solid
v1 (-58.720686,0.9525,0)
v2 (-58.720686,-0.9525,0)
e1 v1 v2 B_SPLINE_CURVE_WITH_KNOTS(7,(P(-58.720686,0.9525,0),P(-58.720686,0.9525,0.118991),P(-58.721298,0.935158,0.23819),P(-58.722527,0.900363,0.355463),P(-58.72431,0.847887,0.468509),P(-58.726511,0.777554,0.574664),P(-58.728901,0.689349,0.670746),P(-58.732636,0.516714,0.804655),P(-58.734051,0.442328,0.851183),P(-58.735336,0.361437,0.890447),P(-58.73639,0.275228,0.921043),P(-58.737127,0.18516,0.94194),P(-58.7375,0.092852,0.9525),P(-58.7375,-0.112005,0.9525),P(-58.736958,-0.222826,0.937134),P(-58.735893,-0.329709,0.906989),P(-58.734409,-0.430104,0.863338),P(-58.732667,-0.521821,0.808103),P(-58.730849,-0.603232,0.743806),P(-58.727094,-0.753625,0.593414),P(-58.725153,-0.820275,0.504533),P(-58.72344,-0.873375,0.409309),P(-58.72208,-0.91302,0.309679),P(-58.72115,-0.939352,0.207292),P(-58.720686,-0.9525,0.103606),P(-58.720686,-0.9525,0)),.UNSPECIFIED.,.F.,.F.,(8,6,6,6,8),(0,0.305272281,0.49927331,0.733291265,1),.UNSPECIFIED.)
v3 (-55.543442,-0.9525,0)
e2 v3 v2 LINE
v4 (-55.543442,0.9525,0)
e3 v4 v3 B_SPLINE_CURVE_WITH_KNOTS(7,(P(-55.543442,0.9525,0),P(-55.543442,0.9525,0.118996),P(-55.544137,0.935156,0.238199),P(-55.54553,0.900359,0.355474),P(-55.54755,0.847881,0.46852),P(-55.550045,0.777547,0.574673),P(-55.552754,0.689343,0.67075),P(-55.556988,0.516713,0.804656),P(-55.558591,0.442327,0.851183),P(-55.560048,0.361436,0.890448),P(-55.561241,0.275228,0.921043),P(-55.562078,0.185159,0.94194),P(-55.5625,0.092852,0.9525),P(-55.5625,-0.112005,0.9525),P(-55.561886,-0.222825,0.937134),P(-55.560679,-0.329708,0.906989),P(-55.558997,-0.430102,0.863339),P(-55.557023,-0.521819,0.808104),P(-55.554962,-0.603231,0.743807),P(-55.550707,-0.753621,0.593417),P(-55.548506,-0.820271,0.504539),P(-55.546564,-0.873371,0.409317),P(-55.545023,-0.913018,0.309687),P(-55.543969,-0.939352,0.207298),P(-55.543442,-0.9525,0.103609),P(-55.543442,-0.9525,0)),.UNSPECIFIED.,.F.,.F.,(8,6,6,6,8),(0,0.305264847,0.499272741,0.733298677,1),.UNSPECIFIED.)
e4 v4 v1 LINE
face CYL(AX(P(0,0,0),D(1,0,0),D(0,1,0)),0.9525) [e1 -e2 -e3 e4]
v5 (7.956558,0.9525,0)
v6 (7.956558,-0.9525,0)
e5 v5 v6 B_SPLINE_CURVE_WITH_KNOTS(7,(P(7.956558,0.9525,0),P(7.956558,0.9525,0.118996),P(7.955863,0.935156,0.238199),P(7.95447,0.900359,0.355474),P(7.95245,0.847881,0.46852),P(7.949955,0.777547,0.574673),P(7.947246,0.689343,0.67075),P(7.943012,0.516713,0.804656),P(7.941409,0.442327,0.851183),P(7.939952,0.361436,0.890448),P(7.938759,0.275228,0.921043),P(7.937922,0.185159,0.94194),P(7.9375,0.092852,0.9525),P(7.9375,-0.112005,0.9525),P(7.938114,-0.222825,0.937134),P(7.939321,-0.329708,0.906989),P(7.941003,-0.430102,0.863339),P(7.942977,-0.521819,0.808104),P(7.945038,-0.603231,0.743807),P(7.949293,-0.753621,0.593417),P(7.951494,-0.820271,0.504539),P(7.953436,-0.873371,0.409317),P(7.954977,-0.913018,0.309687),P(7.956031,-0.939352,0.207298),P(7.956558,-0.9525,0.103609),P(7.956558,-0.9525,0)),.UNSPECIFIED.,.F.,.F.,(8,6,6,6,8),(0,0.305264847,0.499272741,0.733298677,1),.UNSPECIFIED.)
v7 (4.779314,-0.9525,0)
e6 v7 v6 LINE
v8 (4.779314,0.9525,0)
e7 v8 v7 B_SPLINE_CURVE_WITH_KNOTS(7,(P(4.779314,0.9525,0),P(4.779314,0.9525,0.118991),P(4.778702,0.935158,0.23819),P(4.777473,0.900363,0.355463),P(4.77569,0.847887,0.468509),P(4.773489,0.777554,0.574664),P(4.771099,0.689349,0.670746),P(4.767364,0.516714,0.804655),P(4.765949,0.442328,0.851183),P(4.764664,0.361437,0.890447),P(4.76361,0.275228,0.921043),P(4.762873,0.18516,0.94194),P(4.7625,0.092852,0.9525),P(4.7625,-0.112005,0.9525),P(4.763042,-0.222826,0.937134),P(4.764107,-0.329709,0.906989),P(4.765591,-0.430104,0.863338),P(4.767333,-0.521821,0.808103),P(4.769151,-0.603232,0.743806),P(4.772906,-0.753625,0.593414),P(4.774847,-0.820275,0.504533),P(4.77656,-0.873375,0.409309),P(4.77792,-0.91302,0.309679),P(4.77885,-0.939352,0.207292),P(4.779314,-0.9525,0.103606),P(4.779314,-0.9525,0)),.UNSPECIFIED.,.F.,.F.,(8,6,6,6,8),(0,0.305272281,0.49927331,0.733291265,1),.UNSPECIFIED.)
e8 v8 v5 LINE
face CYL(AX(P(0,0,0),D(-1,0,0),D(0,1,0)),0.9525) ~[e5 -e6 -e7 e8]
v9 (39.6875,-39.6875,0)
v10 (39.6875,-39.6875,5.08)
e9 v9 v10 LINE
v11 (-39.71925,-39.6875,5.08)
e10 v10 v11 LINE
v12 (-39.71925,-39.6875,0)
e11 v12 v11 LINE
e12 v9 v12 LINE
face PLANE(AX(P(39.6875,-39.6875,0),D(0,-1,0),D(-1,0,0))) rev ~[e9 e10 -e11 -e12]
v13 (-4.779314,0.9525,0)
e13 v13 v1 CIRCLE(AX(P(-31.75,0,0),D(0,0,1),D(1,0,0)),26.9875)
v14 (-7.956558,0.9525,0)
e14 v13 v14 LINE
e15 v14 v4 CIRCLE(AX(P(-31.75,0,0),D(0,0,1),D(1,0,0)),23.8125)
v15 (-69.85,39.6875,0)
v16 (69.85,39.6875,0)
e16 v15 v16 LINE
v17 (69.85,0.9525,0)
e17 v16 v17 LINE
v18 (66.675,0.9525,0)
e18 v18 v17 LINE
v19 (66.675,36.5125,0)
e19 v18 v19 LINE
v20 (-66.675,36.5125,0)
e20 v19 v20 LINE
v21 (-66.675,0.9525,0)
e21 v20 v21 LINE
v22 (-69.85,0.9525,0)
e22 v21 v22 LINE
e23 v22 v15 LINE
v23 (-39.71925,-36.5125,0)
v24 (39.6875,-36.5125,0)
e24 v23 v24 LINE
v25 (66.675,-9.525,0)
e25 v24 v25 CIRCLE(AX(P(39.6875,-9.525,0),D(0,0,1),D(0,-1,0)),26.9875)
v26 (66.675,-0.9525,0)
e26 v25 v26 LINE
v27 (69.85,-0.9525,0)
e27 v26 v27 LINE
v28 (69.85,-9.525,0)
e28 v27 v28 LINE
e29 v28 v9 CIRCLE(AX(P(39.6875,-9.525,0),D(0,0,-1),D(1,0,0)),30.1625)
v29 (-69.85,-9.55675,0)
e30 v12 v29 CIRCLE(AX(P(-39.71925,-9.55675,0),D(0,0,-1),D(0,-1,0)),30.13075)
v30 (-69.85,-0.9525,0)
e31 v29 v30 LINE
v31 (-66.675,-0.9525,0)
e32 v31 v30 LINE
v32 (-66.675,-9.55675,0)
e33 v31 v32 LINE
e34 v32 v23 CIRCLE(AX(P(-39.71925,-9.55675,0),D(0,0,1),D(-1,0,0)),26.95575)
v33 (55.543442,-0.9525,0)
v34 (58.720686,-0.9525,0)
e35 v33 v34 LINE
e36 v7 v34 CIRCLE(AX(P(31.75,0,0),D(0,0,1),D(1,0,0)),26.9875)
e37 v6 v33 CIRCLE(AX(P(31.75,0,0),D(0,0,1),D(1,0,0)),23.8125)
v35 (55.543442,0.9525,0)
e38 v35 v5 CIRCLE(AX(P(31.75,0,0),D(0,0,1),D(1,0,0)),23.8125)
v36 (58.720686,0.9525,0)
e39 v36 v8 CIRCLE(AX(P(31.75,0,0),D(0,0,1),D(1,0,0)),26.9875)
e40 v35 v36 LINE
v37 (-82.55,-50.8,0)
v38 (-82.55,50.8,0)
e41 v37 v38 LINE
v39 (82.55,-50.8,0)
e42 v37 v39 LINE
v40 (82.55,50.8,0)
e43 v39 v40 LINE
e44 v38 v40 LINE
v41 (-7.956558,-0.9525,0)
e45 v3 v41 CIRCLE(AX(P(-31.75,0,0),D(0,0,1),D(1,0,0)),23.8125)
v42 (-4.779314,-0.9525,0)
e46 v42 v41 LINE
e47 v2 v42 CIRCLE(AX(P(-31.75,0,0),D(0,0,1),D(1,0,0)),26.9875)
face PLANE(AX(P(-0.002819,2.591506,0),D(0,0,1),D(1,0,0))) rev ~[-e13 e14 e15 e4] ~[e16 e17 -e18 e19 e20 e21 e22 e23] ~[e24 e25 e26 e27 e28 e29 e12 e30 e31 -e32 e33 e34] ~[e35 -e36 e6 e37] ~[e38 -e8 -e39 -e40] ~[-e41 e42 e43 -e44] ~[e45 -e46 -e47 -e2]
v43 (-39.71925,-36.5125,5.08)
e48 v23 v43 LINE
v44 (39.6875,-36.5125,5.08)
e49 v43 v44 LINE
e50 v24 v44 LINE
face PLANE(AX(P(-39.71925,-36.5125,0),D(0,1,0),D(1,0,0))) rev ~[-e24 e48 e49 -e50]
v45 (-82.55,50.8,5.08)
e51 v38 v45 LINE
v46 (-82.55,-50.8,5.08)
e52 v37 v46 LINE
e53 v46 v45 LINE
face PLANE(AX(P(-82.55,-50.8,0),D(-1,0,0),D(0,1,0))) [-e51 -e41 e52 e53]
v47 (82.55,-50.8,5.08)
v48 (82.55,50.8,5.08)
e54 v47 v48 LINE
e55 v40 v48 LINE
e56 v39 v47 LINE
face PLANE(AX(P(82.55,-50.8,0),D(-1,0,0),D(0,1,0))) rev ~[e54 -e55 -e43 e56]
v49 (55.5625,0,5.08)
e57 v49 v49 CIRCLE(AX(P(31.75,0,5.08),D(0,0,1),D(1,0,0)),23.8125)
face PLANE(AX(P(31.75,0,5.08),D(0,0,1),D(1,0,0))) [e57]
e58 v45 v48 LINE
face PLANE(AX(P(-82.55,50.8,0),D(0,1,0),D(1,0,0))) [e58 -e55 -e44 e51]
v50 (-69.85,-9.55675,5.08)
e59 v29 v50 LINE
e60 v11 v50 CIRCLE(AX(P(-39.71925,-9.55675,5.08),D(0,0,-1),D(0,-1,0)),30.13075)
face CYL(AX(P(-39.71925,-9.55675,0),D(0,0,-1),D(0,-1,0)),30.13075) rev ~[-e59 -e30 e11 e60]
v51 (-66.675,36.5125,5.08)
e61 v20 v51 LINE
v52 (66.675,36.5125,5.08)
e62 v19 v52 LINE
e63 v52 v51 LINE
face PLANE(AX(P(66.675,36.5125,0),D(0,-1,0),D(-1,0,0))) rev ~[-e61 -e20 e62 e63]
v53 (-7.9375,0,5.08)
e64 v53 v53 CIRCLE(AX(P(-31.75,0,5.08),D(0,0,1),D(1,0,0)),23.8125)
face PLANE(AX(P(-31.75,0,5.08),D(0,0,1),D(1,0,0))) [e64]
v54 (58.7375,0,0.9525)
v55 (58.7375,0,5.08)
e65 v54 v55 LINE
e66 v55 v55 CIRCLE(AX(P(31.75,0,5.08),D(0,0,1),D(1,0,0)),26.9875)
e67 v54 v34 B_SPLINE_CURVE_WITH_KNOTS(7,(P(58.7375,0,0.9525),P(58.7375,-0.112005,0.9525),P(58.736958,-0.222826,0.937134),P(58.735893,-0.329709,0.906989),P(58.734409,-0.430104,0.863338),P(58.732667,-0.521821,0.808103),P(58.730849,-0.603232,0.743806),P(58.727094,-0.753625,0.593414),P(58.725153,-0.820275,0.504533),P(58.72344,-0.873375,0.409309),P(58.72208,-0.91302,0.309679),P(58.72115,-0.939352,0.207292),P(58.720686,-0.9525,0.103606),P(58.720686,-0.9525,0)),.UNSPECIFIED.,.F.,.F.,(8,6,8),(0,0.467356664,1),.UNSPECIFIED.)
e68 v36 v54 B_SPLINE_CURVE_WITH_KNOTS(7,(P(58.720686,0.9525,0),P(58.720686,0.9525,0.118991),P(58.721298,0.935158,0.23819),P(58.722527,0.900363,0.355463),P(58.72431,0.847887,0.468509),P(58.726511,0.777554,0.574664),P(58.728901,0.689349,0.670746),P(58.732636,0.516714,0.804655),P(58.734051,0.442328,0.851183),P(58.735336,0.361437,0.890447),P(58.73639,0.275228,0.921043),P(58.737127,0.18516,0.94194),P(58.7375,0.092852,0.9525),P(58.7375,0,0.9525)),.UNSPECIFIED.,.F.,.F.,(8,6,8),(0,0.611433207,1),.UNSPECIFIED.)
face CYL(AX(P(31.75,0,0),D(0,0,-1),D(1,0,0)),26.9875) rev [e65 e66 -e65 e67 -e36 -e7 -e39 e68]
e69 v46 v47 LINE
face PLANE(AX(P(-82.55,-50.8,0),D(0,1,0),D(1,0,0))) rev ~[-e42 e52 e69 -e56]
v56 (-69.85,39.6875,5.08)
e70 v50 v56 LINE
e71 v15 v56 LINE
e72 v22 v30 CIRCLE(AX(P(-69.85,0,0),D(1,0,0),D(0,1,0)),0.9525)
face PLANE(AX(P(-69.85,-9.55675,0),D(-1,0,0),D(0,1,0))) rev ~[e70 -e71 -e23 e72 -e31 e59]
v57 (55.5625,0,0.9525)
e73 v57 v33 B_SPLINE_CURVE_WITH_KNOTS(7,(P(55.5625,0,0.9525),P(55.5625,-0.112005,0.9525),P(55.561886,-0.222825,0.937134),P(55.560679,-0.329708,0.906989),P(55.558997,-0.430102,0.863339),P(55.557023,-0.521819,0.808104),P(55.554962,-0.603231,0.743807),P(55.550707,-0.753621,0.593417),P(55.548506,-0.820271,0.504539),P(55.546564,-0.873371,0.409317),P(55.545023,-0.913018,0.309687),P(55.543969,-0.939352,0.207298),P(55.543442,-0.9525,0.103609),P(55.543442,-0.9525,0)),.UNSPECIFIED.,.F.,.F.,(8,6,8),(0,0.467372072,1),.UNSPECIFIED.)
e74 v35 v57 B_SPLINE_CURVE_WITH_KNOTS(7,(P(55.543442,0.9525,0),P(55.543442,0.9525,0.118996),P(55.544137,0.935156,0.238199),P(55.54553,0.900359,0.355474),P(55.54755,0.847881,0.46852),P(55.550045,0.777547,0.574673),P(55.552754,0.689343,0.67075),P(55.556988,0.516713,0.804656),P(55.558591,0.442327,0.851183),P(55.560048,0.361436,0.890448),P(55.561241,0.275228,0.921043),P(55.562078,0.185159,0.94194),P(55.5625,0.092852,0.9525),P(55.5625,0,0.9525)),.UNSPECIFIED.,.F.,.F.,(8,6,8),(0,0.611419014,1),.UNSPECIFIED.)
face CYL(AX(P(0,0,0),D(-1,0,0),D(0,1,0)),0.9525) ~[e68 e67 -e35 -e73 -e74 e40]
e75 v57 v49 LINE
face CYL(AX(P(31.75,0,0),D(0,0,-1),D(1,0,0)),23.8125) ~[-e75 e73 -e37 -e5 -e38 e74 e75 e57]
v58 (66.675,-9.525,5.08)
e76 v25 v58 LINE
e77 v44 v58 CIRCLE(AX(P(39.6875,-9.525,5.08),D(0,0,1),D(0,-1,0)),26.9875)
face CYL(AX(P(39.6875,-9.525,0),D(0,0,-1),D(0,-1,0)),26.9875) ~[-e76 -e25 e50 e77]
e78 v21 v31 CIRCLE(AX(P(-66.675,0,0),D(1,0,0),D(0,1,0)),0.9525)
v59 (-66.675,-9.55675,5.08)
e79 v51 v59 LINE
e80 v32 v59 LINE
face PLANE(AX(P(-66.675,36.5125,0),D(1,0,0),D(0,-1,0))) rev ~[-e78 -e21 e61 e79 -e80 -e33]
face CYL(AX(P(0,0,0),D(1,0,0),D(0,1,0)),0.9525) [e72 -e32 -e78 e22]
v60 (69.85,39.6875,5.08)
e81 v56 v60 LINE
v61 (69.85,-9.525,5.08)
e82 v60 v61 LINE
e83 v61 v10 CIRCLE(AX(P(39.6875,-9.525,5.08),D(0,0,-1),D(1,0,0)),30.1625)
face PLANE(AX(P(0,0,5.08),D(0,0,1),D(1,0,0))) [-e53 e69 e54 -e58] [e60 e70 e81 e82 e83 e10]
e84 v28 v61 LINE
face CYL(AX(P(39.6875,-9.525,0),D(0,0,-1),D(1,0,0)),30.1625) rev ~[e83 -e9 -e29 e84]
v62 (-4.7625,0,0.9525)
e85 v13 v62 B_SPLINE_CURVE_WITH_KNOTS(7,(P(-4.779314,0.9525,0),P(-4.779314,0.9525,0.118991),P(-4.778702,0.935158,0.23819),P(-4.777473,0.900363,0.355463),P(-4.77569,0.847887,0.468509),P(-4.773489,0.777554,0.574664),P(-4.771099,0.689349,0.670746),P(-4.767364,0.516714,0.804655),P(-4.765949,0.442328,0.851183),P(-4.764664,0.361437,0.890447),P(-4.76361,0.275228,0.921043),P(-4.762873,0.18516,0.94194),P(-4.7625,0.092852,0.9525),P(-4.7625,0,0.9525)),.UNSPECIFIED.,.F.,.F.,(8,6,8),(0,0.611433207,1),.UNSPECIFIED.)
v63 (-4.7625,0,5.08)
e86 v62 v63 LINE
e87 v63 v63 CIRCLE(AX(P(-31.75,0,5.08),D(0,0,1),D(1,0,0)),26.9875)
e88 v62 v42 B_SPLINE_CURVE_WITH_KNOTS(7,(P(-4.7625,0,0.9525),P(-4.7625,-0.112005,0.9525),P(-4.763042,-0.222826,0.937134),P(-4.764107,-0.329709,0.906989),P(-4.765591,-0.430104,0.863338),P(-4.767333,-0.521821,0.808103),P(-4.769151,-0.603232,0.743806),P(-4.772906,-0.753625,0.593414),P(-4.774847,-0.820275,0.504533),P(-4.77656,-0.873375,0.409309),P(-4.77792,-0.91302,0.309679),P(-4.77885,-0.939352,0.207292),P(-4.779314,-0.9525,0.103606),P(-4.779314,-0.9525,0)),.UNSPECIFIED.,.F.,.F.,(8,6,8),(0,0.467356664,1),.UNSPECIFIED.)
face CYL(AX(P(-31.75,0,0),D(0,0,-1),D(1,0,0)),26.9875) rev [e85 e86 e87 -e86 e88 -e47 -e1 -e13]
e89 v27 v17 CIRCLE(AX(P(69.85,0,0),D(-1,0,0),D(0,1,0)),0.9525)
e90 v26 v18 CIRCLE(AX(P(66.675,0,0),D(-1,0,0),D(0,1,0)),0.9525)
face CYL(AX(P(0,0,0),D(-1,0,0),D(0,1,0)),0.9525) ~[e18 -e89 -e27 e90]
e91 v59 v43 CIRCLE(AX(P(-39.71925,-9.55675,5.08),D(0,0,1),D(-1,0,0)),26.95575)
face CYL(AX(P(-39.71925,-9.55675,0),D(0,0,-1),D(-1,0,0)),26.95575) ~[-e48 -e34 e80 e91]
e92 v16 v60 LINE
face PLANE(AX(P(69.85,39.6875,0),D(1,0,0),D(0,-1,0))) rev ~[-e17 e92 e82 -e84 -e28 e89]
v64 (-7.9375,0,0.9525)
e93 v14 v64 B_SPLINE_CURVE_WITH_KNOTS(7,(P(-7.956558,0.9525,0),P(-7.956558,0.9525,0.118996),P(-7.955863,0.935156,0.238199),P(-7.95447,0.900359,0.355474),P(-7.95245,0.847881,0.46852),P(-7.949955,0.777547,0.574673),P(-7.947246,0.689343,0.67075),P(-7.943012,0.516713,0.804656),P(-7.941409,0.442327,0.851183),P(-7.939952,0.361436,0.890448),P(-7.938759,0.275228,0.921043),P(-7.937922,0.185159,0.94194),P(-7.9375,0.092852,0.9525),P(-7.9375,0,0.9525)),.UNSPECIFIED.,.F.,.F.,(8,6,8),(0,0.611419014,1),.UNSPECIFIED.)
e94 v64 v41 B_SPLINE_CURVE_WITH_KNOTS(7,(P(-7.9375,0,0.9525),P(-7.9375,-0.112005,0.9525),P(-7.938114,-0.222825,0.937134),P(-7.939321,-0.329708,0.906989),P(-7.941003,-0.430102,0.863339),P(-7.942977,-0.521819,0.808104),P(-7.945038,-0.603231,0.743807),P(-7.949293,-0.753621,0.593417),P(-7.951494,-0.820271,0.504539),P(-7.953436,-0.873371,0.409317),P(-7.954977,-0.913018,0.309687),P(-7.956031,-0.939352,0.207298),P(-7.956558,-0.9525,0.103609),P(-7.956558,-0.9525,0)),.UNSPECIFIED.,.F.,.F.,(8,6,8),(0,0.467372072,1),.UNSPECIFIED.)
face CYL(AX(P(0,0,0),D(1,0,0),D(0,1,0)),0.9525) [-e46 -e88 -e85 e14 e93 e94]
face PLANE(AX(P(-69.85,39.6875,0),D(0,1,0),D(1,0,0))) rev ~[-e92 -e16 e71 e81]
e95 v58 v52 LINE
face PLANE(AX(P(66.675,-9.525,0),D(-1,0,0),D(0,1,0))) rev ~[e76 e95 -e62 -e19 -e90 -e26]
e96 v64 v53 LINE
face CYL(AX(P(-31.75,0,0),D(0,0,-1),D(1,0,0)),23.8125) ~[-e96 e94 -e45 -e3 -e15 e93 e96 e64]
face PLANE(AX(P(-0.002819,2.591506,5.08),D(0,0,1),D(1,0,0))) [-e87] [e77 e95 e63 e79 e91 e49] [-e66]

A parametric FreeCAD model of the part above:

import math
import FreeCAD as App
import Part
import Sketcher
Q = App.Units.Quantity


def add_polygon(sketch, points):
    """Adds a closed chain of lines whose ends are joined by coincident constraints."""
    first, n = sketch.GeometryCount, len(points)
    for a, b in zip(points, points[1:] + points[:1]):
        sketch.addGeometry(Part.LineSegment(App.Vector(*a, 0), App.Vector(*b, 0)), False)
    for i in range(n):
        sketch.addConstraint(Sketcher.Constraint("Coincident", first + i, 2, first + (i + 1) % n, 1))

doc = App.newDocument("Part")
body = doc.addObject("PartDesign::Body", "Body")

# Sketch on XY plane
sketch1 = body.newObject("Sketcher::SketchObject", "Sketch")
sketch1.AttachmentSupport = (doc.getObject("XY_Plane"), [""])
sketch1.MapMode = "FlatFace"
sketch1.addGeometry([
    Part.LineSegment(App.Vector(66.675, 36.5125, 0), App.Vector(-66.675, 36.5125, 0)),  # 0
    Part.LineSegment(App.Vector(-66.675, 36.5125, 0), App.Vector(-66.675, -9.55675, 0)),  # 1
    Part.ArcOfCircle(Part.Circle(App.Vector(-39.71925, -9.55675, 0), App.Vector(0, 0, 1), 26.95575), math.radians(180), math.radians(270)),  # 2
    Part.LineSegment(App.Vector(-39.71925, -36.5125, 0), App.Vector(39.6875, -36.5125, 0)),  # 3
    Part.ArcOfCircle(Part.Circle(App.Vector(39.6875, -9.525, 0), App.Vector(0, 0, 1), 26.9875), math.radians(-90), math.radians(0)),  # 4
    Part.LineSegment(App.Vector(66.675, -9.525, 0), App.Vector(66.675, 36.5125, 0)),  # 5
    Part.Circle(App.Vector(-31.75, 0, 0), App.Vector(0, 0, 1), 26.9875),  # 6
    Part.Circle(App.Vector(31.75, 0, 0), App.Vector(0, 0, 1), 26.9875),  # 7
], False)
sketch1.addConstraint([
    Sketcher.Constraint("Coincident", 0, 2, 1, 1),
    Sketcher.Constraint("Tangent", 1, 2, 2, 1),
    Sketcher.Constraint("Tangent", 2, 2, 3, 1),
    Sketcher.Constraint("Tangent", 3, 2, 4, 1),
    Sketcher.Constraint("Tangent", 4, 2, 5, 1),
    Sketcher.Constraint("Coincident", 5, 2, 0, 1),
    Sketcher.Constraint("Horizontal", 0),
    Sketcher.Constraint("Vertical", 1),
    Sketcher.Constraint("Horizontal", 3),
    Sketcher.Constraint("Vertical", 5),
    Sketcher.Constraint("Equal", 4, 6),
    Sketcher.Constraint("Equal", 6, 7),
    Sketcher.Constraint("Symmetric", 6, 3, 7, 3, -1, 1),
    Sketcher.Constraint("PointOnObject", 6, 3, -1),
    Sketcher.Constraint("Diameter", 6, Q("2.125 in")),
    Sketcher.Constraint("DistanceX", 0, 2, 0, 1, Q("5.25 in")),
    Sketcher.Constraint("DistanceX", 6, 3, 7, 3, Q("2.5 in")),
    Sketcher.Constraint("DistanceY", 5, 1, 5, 2, Q("1.8125 in")),
    Sketcher.Constraint("DistanceX", -1, 1, 4, 3, Q("1.5625 in")),
    Sketcher.Constraint("DistanceY", 4, 3, -1, 1, Q("0.375 in")),
    Sketcher.Constraint("Radius", 2, Q("26.95575 mm")),
])
pad1 = body.newObject("PartDesign::Pad", "Pad")
pad1.Profile = sketch1
pad1.Length = Q("0.2 in")
body2 = doc.addObject("PartDesign::Body", "Body001")

# Sketch on XY plane
sketch2 = body2.newObject("Sketcher::SketchObject", "Sketch001")
sketch2.AttachmentSupport = (doc.getObject("XY_Plane001"), [""])
sketch2.MapMode = "FlatFace"
sketch2.addGeometry(Part.Circle(App.Vector(-31.75, 0, 0), App.Vector(0, 0, 1), 23.8125), False)
sketch2.addConstraint([
    Sketcher.Constraint("PointOnObject", 0, 3, -1),
    Sketcher.Constraint("Diameter", 0, Q("1.875 in")),
    Sketcher.Constraint("DistanceX", 0, 3, -1, 1, Q("1.25 in")),
])
pad2 = body2.newObject("PartDesign::Pad", "Pad001")
pad2.Profile = sketch2
pad2.Length = Q("0.2 in")
body3 = doc.addObject("PartDesign::Body", "Body002")

# Sketch on XY plane
sketch3 = body3.newObject("Sketcher::SketchObject", "Sketch002")
sketch3.AttachmentSupport = (doc.getObject("XY_Plane002"), [""])
sketch3.MapMode = "FlatFace"
sketch3.addGeometry(Part.Circle(App.Vector(31.75, 0, 0), App.Vector(0, 0, 1), 23.8125), False)
sketch3.addConstraint([
    Sketcher.Constraint("PointOnObject", 0, 3, -1),
    Sketcher.Constraint("Diameter", 0, Q("1.875 in")),
    Sketcher.Constraint("DistanceX", -1, 1, 0, 3, Q("1.25 in")),
])
pad3 = body3.newObject("PartDesign::Pad", "Pad002")
pad3.Profile = sketch3
pad3.Length = Q("0.2 in")
body4 = doc.addObject("PartDesign::Body", "Body003")

# Sketch on XY plane
sketch4 = body4.newObject("Sketcher::SketchObject", "Sketch003")
sketch4.AttachmentSupport = (doc.getObject("XY_Plane003"), [""])
sketch4.MapMode = "FlatFace"
add_polygon(sketch4, [(-82.55, 50.8), (-82.55, -50.8), (82.55, -50.8), (82.55, 50.8)])  # lines 0-3
sketch4.addGeometry(Part.ArcOfCircle(Part.Circle(App.Vector(-39.71925, -9.55675, 0), App.Vector(0, 0, 1), 30.13075), math.radians(180), math.radians(270)), False)  # 4
sketch4.addGeometry(Part.LineSegment(App.Vector(-69.85, -9.55675, 0), App.Vector(-69.85, 39.6875, 0)), False)  # 5
sketch4.addGeometry(Part.LineSegment(App.Vector(-69.85, 39.6875, 0), App.Vector(69.85, 39.6875, 0)), False)  # 6
sketch4.addGeometry(Part.LineSegment(App.Vector(69.85, 39.6875, 0), App.Vector(69.85, -9.525, 0)), False)  # 7
sketch4.addGeometry(Part.ArcOfCircle(Part.Circle(App.Vector(39.6875, -9.525, 0), App.Vector(0, 0, 1), 30.1625), math.radians(-90), math.radians(0)), False)  # 8
sketch4.addGeometry(Part.LineSegment(App.Vector(39.6875, -39.6875, 0), App.Vector(-39.71925, -39.6875, 0)), False)  # 9
sketch4.addConstraint([
    Sketcher.Constraint("Tangent", 4, 1, 5, 1),
    Sketcher.Constraint("Coincident", 5, 2, 6, 1),
    Sketcher.Constraint("Coincident", 6, 2, 7, 1),
    Sketcher.Constraint("Tangent", 7, 2, 8, 2),
    Sketcher.Constraint("Tangent", 8, 1, 9, 1),
    Sketcher.Constraint("Tangent", 9, 2, 4, 2),
    Sketcher.Constraint("Vertical", 0),
    Sketcher.Constraint("Horizontal", 1),
    Sketcher.Constraint("Vertical", 2),
    Sketcher.Constraint("Horizontal", 3),
    Sketcher.Constraint("Vertical", 5),
    Sketcher.Constraint("Horizontal", 6),
    Sketcher.Constraint("Vertical", 7),
    Sketcher.Constraint("Horizontal", 9),
    Sketcher.Constraint("Symmetric", 0, 2, 2, 2, -1, 1),
    Sketcher.Constraint("DistanceY", 0, 2, 0, 1, Q("4 in")),
    Sketcher.Constraint("DistanceX", 1, 1, 1, 2, Q("6.5 in")),
    Sketcher.Constraint("DistanceX", 6, 1, 6, 2, Q("5.5 in")),
    Sketcher.Constraint("Radius", 8, Q("1.1875 in")),
    Sketcher.Constraint("DistanceX", 4, 1, 1, 2, Q("6 in")),
    Sketcher.Constraint("DistanceY", 7, 2, 7, 1, Q("1.9375 in")),
    Sketcher.Constraint("DistanceY", 8, 3, -1, 1, Q("0.375 in")),
    Sketcher.Constraint("Radius", 4, Q("30.13075 mm")),
])
pad4 = body4.newObject("PartDesign::Pad", "Pad003")
pad4.Profile = sketch4
pad4.Length = Q("0.2 in")
body.AllowCompound = True
doc.recompute()

boolean = body.newObject("PartDesign::Boolean", "Boolean")
boolean.Type = "Fuse"
boolean.addObjects([body2])
doc.recompute()

boolean2 = body.newObject("PartDesign::Boolean", "Boolean001")
boolean2.Type = "Fuse"
boolean2.addObjects([body3])
doc.recompute()

boolean3 = body.newObject("PartDesign::Boolean", "Boolean002")
boolean3.Type = "Fuse"
boolean3.addObjects([body4])

# Sketch on YZ plane
sketch5 = body.newObject("Sketcher::SketchObject", "Sketch004")
sketch5.AttachmentSupport = (doc.getObject("YZ_Plane"), [""])
sketch5.MapMode = "FlatFace"
sketch5.addGeometry([
    Part.LineSegment(App.Vector(-0.9525, 0, 0), App.Vector(0.9525, 0, 0)),
    Part.ArcOfCircle(Part.Circle(App.Vector(0, 0, 0), App.Vector(0, 0, 1), 0.9525), math.radians(0), math.radians(180)),
], False)
sketch5.addConstraint([
    Sketcher.Constraint("Coincident", 0, 1, 1, 2),
    Sketcher.Constraint("Coincident", 1, 1, 0, 2),
    Sketcher.Constraint("Horizontal", 0),
    Sketcher.Constraint("Coincident", 1, 3, -1, 1),
    Sketcher.Constraint("PointOnObject", 0, 1, -1),
    Sketcher.Constraint("Radius", 1, Q("0.0375 in")),
])
pad5 = body.newObject("PartDesign::Pad", "Pad004")
pad5.Profile = sketch5
pad5.Type = "TwoLengths"
pad5.Length = Q("3 in")
pad5.Length2 = Q("3 in")

doc.recompute()
